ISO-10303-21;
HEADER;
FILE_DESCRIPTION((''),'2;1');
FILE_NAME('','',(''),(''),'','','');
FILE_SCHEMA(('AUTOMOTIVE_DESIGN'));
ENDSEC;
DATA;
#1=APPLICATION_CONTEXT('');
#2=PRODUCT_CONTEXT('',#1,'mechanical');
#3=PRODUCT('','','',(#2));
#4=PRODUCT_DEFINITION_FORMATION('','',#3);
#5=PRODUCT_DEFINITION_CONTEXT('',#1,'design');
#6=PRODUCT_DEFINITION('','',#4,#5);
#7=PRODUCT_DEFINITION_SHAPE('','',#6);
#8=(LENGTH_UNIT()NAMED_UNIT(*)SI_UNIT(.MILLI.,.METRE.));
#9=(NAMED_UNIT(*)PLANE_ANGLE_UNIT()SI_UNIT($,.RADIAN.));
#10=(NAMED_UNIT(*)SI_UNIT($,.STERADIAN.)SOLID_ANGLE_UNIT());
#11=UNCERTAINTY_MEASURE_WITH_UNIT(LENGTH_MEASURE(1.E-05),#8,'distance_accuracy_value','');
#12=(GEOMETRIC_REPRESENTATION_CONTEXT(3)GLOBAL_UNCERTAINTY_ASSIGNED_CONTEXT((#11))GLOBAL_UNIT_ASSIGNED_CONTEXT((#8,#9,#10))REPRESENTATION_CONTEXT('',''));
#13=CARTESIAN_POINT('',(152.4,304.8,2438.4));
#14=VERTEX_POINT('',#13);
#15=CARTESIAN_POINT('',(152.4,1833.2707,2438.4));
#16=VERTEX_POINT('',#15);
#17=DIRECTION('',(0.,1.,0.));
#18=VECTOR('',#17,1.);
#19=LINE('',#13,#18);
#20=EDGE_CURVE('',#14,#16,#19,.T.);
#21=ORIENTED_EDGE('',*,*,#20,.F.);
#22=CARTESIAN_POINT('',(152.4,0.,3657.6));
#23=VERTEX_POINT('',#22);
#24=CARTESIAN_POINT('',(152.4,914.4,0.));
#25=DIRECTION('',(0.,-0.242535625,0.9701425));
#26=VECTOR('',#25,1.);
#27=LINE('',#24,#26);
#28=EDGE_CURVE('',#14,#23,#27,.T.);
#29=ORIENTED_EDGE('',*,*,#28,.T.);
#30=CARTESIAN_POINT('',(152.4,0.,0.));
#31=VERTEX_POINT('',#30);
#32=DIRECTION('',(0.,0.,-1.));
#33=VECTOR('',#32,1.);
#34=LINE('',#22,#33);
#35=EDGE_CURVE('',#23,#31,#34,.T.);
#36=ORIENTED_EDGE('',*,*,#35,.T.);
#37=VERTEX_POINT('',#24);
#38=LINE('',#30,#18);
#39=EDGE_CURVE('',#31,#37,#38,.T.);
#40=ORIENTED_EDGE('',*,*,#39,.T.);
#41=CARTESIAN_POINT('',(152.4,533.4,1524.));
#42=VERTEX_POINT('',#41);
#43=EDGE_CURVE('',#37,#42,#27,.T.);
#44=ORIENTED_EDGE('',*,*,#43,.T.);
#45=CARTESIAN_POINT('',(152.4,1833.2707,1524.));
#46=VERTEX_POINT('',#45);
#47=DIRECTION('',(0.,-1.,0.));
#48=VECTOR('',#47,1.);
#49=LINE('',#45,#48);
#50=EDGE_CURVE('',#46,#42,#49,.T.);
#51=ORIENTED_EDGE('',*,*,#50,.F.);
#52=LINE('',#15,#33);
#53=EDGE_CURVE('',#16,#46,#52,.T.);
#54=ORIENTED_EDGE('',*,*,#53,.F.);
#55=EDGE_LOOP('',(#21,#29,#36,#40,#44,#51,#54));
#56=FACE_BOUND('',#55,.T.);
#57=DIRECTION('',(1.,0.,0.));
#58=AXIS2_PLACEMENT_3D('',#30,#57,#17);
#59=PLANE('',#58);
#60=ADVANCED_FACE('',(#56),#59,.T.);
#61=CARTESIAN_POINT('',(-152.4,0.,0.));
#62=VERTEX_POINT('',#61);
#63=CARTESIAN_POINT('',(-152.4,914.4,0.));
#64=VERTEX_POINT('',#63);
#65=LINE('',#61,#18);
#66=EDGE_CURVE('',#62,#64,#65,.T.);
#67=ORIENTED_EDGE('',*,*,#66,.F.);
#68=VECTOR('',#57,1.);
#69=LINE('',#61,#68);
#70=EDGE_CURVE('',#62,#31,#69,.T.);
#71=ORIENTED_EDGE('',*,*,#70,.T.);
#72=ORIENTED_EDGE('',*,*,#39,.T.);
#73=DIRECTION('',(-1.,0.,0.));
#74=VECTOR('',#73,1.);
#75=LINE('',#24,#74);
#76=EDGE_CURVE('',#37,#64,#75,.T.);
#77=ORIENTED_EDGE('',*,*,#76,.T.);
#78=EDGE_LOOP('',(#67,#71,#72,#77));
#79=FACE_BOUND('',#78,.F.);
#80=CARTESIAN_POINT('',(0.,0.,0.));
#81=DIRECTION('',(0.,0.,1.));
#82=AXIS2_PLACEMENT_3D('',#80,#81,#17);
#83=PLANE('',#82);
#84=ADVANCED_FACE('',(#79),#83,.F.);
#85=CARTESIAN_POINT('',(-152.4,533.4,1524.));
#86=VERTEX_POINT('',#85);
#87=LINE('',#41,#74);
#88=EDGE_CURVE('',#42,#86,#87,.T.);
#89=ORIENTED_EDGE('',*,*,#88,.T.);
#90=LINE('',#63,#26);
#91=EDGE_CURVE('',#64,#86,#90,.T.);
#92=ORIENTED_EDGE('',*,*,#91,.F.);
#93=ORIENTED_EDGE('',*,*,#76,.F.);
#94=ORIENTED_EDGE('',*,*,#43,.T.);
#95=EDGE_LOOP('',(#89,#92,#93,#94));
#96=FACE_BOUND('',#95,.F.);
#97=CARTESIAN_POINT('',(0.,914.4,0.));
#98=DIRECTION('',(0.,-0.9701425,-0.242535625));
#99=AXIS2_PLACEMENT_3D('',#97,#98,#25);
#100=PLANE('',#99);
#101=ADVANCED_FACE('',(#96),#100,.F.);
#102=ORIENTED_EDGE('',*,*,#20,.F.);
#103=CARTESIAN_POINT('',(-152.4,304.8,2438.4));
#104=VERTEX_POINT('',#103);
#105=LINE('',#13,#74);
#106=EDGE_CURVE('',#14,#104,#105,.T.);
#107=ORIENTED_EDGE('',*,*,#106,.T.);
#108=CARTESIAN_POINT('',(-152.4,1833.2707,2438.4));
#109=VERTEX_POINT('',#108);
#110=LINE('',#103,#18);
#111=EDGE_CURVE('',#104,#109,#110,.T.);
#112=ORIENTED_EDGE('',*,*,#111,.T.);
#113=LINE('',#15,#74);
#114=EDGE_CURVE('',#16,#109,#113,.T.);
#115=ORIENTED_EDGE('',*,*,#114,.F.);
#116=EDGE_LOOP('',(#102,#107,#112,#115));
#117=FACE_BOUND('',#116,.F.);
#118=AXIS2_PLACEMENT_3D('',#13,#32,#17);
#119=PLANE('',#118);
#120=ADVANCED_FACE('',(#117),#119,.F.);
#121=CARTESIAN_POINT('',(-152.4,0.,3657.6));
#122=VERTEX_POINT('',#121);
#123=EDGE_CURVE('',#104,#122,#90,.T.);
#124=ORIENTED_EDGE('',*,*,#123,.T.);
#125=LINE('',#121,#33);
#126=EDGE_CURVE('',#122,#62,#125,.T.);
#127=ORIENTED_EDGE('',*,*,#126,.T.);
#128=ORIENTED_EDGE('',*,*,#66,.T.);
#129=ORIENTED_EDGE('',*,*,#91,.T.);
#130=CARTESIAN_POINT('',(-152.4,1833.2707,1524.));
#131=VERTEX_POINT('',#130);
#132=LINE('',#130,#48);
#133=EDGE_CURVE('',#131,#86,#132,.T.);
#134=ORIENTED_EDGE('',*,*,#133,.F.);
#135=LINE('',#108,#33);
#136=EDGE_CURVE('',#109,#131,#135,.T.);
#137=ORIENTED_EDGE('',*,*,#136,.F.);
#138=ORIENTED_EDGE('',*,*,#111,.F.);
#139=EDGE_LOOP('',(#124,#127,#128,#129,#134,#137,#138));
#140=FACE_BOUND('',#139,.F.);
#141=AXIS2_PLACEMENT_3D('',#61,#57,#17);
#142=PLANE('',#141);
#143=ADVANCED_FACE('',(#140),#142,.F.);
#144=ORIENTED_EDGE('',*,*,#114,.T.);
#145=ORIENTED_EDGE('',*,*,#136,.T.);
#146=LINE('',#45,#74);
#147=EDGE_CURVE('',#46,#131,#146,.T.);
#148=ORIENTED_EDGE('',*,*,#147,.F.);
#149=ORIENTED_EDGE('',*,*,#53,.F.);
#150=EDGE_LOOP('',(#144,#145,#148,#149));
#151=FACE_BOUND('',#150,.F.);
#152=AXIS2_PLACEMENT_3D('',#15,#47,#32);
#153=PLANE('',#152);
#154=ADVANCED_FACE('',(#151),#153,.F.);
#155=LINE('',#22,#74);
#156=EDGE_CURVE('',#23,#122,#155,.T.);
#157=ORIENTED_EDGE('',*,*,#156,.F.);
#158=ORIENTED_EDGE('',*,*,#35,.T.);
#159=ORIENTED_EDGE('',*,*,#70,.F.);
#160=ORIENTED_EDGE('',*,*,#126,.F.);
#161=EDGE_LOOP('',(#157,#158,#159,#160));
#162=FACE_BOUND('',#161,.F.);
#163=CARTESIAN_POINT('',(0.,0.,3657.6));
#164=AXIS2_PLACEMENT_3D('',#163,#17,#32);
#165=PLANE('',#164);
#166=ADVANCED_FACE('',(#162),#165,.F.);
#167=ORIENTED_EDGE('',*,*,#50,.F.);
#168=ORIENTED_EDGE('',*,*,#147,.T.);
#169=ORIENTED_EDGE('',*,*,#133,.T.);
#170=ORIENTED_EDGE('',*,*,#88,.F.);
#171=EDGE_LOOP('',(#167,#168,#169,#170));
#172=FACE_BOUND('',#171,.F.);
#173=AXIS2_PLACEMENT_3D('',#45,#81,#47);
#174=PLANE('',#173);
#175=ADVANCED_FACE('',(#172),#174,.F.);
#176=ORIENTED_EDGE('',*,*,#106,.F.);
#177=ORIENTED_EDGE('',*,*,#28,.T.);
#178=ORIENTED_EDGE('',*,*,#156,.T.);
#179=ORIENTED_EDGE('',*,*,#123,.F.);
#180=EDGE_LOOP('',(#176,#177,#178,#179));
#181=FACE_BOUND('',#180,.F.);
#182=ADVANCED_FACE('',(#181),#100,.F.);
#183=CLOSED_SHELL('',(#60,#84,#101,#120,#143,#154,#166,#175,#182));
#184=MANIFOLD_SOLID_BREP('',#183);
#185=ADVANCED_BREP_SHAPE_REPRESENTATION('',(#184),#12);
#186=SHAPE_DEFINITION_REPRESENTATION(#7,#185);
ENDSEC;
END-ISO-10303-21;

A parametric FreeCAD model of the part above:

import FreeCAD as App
import Part
import Sketcher
Q = App.Units.Quantity


def add_polygon(sketch, points):
    """Adds a closed chain of lines whose ends are joined by coincident constraints."""
    first, n = sketch.GeometryCount, len(points)
    for a, b in zip(points, points[1:] + points[:1]):
        sketch.addGeometry(Part.LineSegment(App.Vector(*a, 0), App.Vector(*b, 0)), False)
    for i in range(n):
        sketch.addConstraint(Sketcher.Constraint("Coincident", first + i, 2, first + (i + 1) % n, 1))

doc = App.newDocument("Part")
body = doc.addObject("PartDesign::Body", "Body")

sketch1 = body.newObject("Sketcher::SketchObject", "Sketch")
sketch1.AttachmentSupport = (doc.getObject("YZ_Plane"), [""])
sketch1.MapMode = "FlatFace"
add_polygon(sketch1, [(0, 3657.6), (0, 0), (914.4, 0)])
sketch1.addConstraint([
    Sketcher.Constraint("Vertical", 0),
    Sketcher.Constraint("Horizontal", 1),
    Sketcher.Constraint("Coincident", 0, 2, -1, 1),
    Sketcher.Constraint("DistanceX", 1, 1, 1, 2, Q("36 in")),
    Sketcher.Constraint("DistanceY", 0, 2, 0, 1, Q("144 in")),
])
pad1 = body.newObject("PartDesign::Pad", "Pad")
pad1.Profile = sketch1
pad1.Length = Q("12 in")
pad1.Midplane = True

sketch2 = body.newObject("Sketcher::SketchObject", "Sketch001")
sketch2.AttachmentSupport = (doc.getObject("YZ_Plane"), [""])
sketch2.MapMode = "FlatFace"
sketch2.AttachmentOffset = App.Placement(App.Vector(0, 0, 6 * 25.4), App.Rotation())
add_polygon(sketch2, [(304.8, 2438.4), (533.4, 1524), (1833.2707, 1524), (1833.2707, 2438.4)])
sketch2.addConstraint([
    Sketcher.Constraint("Horizontal", 1),
    Sketcher.Constraint("Vertical", 2),
    Sketcher.Constraint("Horizontal", 3),
    Sketcher.Constraint("DistanceY", 2, 1, 2, 2, Q("36 in")),
    Sketcher.Constraint("DistanceX", -1, 1, 0, 2, Q("21 in")),
    Sketcher.Constraint("DistanceY", -1, 1, 0, 2, Q("60 in")),
    Sketcher.Constraint("DistanceX", -1, 1, 3, 2, Q("12 in")),
    Sketcher.Constraint("DistanceX", 1, 1, 1, 2, Q("51.176 in")),
])
pad2 = body.newObject("PartDesign::Pad", "Pad001")
pad2.Profile = sketch2
pad2.Length = Q("12 in")
pad2.Reversed = True

doc.recompute()
